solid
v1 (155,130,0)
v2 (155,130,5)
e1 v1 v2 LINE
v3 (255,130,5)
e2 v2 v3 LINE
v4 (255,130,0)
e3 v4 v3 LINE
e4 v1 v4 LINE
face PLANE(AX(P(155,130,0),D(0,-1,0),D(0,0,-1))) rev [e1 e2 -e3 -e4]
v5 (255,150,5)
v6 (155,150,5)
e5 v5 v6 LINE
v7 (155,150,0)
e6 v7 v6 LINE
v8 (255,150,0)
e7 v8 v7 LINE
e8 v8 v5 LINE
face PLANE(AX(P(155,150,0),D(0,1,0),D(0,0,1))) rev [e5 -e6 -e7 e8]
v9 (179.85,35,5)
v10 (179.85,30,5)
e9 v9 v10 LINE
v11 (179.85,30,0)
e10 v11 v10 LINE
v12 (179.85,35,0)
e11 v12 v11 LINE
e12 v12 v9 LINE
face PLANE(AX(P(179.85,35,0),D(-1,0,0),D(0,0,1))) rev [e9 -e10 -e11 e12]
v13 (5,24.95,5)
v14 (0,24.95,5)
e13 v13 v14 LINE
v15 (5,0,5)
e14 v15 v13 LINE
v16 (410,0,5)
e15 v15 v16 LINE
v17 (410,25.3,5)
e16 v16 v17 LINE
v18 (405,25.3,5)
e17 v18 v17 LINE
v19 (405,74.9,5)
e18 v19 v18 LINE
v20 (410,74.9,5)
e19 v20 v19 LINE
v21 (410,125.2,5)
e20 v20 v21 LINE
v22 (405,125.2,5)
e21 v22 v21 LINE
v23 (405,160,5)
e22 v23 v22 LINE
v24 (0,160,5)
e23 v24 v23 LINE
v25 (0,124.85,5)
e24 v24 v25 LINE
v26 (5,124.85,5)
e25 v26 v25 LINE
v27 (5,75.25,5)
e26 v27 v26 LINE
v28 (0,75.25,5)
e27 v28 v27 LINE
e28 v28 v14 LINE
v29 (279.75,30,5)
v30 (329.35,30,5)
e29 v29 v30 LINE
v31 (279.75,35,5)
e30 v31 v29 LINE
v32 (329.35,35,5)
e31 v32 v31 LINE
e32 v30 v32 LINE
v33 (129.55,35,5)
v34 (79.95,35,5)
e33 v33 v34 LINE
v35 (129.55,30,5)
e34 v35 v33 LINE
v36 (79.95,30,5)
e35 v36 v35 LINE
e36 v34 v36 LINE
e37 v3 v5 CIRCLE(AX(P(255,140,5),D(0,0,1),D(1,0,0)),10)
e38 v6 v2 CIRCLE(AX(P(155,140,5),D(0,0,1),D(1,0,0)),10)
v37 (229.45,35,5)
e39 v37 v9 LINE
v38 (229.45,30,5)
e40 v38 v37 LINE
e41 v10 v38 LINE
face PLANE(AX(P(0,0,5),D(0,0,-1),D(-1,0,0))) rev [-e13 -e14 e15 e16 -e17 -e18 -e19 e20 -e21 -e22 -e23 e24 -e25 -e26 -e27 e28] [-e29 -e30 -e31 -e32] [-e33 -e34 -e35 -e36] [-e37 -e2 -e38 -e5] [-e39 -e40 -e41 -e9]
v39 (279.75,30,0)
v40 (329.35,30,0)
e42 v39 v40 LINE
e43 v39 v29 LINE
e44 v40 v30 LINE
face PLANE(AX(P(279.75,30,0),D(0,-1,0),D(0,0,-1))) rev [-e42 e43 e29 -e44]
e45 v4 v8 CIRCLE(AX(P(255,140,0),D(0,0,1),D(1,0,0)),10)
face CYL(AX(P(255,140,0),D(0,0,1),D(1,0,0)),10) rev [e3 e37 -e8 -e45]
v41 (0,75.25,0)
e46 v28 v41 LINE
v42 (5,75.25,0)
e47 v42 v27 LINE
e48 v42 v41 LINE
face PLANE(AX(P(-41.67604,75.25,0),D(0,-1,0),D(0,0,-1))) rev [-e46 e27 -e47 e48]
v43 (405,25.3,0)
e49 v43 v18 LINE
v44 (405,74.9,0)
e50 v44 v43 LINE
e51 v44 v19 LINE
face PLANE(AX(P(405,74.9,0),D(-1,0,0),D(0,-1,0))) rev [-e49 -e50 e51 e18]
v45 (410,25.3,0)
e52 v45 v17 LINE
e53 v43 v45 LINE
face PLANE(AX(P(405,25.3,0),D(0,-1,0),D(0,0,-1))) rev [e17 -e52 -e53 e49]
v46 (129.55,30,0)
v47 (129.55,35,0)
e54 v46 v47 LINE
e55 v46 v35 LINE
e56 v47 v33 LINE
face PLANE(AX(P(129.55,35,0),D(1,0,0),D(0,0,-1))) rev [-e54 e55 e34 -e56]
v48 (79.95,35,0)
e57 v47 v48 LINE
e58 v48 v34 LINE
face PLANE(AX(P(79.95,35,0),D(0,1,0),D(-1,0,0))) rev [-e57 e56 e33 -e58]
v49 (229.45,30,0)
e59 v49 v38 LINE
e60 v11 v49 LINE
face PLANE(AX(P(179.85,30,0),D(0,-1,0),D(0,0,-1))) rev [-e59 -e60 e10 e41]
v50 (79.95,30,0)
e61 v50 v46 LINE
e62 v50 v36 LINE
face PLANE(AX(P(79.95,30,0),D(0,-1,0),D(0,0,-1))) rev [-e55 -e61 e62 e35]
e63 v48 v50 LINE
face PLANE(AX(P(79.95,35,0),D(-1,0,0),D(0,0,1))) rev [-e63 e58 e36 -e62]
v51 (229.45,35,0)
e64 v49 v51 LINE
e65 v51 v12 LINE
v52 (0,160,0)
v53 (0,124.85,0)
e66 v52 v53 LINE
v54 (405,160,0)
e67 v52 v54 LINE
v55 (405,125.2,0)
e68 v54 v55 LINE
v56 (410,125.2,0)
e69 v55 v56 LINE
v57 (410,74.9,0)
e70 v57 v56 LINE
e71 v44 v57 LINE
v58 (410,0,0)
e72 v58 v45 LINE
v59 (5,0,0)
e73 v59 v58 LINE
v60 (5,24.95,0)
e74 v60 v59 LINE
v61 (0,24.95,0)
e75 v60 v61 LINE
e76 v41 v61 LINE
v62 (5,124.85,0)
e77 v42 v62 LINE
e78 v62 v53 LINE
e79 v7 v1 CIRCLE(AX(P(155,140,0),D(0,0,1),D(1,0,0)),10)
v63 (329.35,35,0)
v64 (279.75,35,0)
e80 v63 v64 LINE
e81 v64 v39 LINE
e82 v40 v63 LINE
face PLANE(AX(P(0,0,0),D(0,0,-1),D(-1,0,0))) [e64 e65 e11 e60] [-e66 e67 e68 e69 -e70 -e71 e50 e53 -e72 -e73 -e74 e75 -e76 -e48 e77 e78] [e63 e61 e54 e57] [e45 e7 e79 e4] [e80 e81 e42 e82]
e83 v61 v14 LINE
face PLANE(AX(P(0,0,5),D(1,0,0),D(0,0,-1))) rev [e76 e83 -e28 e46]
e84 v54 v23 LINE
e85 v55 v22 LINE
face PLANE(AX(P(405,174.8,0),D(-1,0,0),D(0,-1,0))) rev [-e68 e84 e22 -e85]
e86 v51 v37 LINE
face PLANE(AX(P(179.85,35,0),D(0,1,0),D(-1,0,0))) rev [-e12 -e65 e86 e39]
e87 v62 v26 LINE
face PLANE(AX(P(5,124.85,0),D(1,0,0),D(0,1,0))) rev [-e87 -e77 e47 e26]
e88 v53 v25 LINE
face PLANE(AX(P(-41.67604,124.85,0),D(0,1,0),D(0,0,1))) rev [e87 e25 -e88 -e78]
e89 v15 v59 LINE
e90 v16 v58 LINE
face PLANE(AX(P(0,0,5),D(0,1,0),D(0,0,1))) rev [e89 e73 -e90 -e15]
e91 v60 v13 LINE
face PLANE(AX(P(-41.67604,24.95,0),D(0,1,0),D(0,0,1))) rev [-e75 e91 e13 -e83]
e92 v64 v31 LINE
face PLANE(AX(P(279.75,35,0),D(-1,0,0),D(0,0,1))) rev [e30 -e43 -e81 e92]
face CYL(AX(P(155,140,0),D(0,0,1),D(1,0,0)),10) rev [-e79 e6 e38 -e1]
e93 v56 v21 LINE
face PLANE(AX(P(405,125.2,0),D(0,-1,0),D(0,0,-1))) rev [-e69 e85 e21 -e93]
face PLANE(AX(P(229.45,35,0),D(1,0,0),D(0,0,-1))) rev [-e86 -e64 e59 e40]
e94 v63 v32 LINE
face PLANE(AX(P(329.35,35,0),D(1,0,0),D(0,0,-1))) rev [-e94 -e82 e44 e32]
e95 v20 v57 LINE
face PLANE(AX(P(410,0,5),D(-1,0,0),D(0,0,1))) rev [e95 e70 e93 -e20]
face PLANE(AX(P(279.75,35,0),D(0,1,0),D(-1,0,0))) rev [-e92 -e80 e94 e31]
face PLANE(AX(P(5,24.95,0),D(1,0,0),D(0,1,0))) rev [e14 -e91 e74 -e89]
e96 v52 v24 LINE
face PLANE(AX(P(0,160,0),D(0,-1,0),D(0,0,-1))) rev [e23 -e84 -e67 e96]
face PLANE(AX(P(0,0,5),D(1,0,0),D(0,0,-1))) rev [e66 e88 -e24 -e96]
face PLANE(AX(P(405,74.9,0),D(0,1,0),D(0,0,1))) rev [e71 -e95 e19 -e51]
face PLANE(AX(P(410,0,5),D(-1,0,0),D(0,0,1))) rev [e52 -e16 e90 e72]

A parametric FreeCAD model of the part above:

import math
import FreeCAD as App
import Part
import Sketcher
Q = App.Units.Quantity


def add_polygon(sketch, points):
    """Adds a closed chain of lines whose ends are joined by coincident constraints."""
    first, n = sketch.GeometryCount, len(points)
    for a, b in zip(points, points[1:] + points[:1]):
        sketch.addGeometry(Part.LineSegment(App.Vector(*a, 0), App.Vector(*b, 0)), False)
    for i in range(n):
        sketch.addConstraint(Sketcher.Constraint("Coincident", first + i, 2, first + (i + 1) % n, 1))

doc = App.newDocument("Part")
body = doc.addObject("PartDesign::Body", "Body")

sketch1 = body.newObject("Sketcher::SketchObject", "Sketch")
sketch1.AttachmentSupport = (doc.getObject("XY_Plane"), [""])
sketch1.MapMode = "FlatFace"
add_polygon(sketch1, [(0, 300), (0, 0), (410, 0), (410, 300)])
sketch1.addConstraint([
    Sketcher.Constraint("Vertical", 0),
    Sketcher.Constraint("Horizontal", 1),
    Sketcher.Constraint("Vertical", 2),
    Sketcher.Constraint("Horizontal", 3),
    Sketcher.Constraint("Coincident", 0, 2, -1, 1),
    Sketcher.Constraint("DistanceX", 1, 1, 1, 2, Q("410 mm")),
    Sketcher.Constraint("DistanceY", 0, 2, 0, 1, Q("300 mm")),
])
pad1 = body.newObject("PartDesign::Pad", "Pad")
pad1.Profile = sketch1
pad1.Length = 5

sketch2 = body.newObject("Sketcher::SketchObject", "Sketch001")
sketch2.AttachmentSupport = (doc.getObject("XY_Plane"), [""])
sketch2.MapMode = "FlatFace"
sketch2.AttachmentOffset = App.Placement(App.Vector(0, 0, 5), App.Rotation())
add_polygon(sketch2, [(-42, 325), (-42, 275), (5, 275), (5, 325)])
sketch2.addConstraint([
    Sketcher.Constraint("Vertical", 0),
    Sketcher.Constraint("Horizontal", 1),
    Sketcher.Constraint("Vertical", 2),
    Sketcher.Constraint("Horizontal", 3),
    Sketcher.Constraint("DistanceY", 0, 2, 0, 1, Q("49.6 mm")),
    Sketcher.Constraint("DistanceX", -1, 1, 1, 2, Q("5 mm")),
    Sketcher.Constraint("DistanceY", -1, 1, 0, 2, Q("275.05 mm")),
    Sketcher.Constraint("DistanceX", 1, 1, 1, 2, Q("46.67604 mm")),
])
pocket1 = body.newObject("PartDesign::Pocket", "Pocket")
pocket1.Profile = sketch2
pocket1.Length = 5
doc.recompute()

linearpattern = body.newObject("PartDesign::LinearPattern", "LinearPattern")
linearpattern.Originals = [pocket1]
linearpattern.Direction = (doc.getObject("Y_Axis"), [""])
linearpattern.Mode = "offset"
linearpattern.Offset = 99.9
linearpattern.Occurrences = 4
linearpattern.Reversed = True
body.Tip = linearpattern

sketch3 = body.newObject("Sketcher::SketchObject", "Sketch002")
sketch3.AttachmentSupport = (doc.getObject("XY_Plane"), [""])
sketch3.MapMode = "FlatFace"
sketch3.AttachmentOffset = App.Placement(App.Vector(0, 0, 5), App.Rotation())
add_polygon(sketch3, [(405, 275), (405, 225), (433, 225), (433, 275)])
sketch3.addConstraint([
    Sketcher.Constraint("Vertical", 0),
    Sketcher.Constraint("Horizontal", 1),
    Sketcher.Constraint("Vertical", 2),
    Sketcher.Constraint("Horizontal", 3),
    Sketcher.Constraint("DistanceY", 0, 2, 0, 1, Q("49.6 mm")),
    Sketcher.Constraint("DistanceX", -1, 1, 0, 2, Q("405 mm")),
    Sketcher.Constraint("DistanceY", -1, 1, 0, 2, Q("225.1 mm")),
    Sketcher.Constraint("DistanceX", 1, 1, 1, 2, Q("27.663601 mm")),
])
pocket2 = body.newObject("PartDesign::Pocket", "Pocket001")
pocket2.Profile = sketch3
pocket2.Length = 5
doc.recompute()

linearpattern2 = body.newObject("PartDesign::LinearPattern", "LinearPattern001")
linearpattern2.Originals = [pocket2]
linearpattern2.Direction = (doc.getObject("Y_Axis"), [""])
linearpattern2.Mode = "offset"
linearpattern2.Offset = 99.9
linearpattern2.Occurrences = 3
linearpattern2.Reversed = True
body.Tip = linearpattern2

sketch4 = body.newObject("Sketcher::SketchObject", "Sketch003")
sketch4.AttachmentSupport = (doc.getObject("XY_Plane"), [""])
sketch4.MapMode = "FlatFace"
sketch4.AttachmentOffset = App.Placement(App.Vector(0, 0, 5), App.Rotation())
add_polygon(sketch4, [(80, 35), (80, 30), (130, 30), (130, 35)])
sketch4.addConstraint([
    Sketcher.Constraint("Vertical", 0),
    Sketcher.Constraint("Horizontal", 1),
    Sketcher.Constraint("Vertical", 2),
    Sketcher.Constraint("Horizontal", 3),
    Sketcher.Constraint("DistanceY", 0, 2, 0, 1, Q("5 mm")),
    Sketcher.Constraint("DistanceX", 1, 1, 1, 2, Q("49.6 mm")),
    Sketcher.Constraint("DistanceY", -1, 1, 0, 2, Q("30 mm")),
    Sketcher.Constraint("DistanceX", -1, 1, 0, 2, Q("79.95 mm")),
])
pocket3 = body.newObject("PartDesign::Pocket", "Pocket002")
pocket3.Profile = sketch4
pocket3.Length = 5
doc.recompute()

linearpattern3 = body.newObject("PartDesign::LinearPattern", "LinearPattern002")
linearpattern3.Originals = [pocket3]
linearpattern3.Direction = (doc.getObject("X_Axis"), [""])
linearpattern3.Mode = "offset"
linearpattern3.Offset = 99.9
linearpattern3.Occurrences = 3
body.Tip = linearpattern3

sketch5 = body.newObject("Sketcher::SketchObject", "Sketch004")
sketch5.AttachmentSupport = (doc.getObject("XY_Plane"), [""])
sketch5.MapMode = "FlatFace"
sketch5.AttachmentOffset = App.Placement(App.Vector(0, 0, 5), App.Rotation())
add_polygon(sketch5, [(0, 160), (405, 160), (497, 346), (-28, 334), (-28, 200)])
sketch5.addGeometry(Part.LineSegment(App.Vector(255, 150, 0), App.Vector(155, 150, 0)), False)
sketch5.addGeometry(Part.ArcOfCircle(Part.Circle(App.Vector(155, 140, 0), App.Vector(0, 0, 1), 10), math.radians(90), math.radians(270)), False)
sketch5.addGeometry(Part.LineSegment(App.Vector(155, 130, 0), App.Vector(255, 130, 0)), False)
sketch5.addGeometry(Part.ArcOfCircle(Part.Circle(App.Vector(255, 140, 0), App.Vector(0, 0, 1), 10), math.radians(-90), math.radians(90)), False)
sketch5.addConstraint([
    Sketcher.Constraint("Tangent", 5, 2, 6, 1),
    Sketcher.Constraint("Tangent", 6, 2, 7, 1),
    Sketcher.Constraint("Tangent", 7, 2, 8, 1),
    Sketcher.Constraint("Tangent", 8, 2, 5, 1),
    Sketcher.Constraint("Horizontal", 0),
    Sketcher.Constraint("Vertical", 3),
    Sketcher.Constraint("Horizontal", 5),
    Sketcher.Constraint("Horizontal", 7),
    Sketcher.Constraint("PointOnObject", 4, 2, -2),
    Sketcher.Constraint("Radius", 6, Q("10 mm")),
    Sketcher.Constraint("DistanceX", 0, 1, 0, 2, Q("405 mm")),
    Sketcher.Constraint("DistanceX", 5, 2, 5, 1, Q("100 mm")),
    Sketcher.Constraint("DistanceX", -1, 1, 6, 3, Q("155 mm")),
    Sketcher.Constraint("DistanceY", -1, 1, 6, 3, Q("140 mm")),
    Sketcher.Constraint("DistanceY", -1, 1, 0, 2, Q("160 mm")),
    Sketcher.Constraint("DistanceX", 2, 2, -1, 1, Q("27.8258 mm")),
    Sketcher.Constraint("DistanceY", 3, 2, 3, 1, Q("133.332107 mm")),
    Sketcher.Constraint("DistanceY", 3, 2, 1, 2, Q("145.845329 mm")),
    Sketcher.Constraint("Distance", 1, Q("207.662726 mm")),
    Sketcher.Constraint("Distance", 2, Q("524.638162 mm")),
])
pocket4 = body.newObject("PartDesign::Pocket", "Pocket003")
pocket4.Profile = sketch5
pocket4.Length = 5

doc.recompute()
